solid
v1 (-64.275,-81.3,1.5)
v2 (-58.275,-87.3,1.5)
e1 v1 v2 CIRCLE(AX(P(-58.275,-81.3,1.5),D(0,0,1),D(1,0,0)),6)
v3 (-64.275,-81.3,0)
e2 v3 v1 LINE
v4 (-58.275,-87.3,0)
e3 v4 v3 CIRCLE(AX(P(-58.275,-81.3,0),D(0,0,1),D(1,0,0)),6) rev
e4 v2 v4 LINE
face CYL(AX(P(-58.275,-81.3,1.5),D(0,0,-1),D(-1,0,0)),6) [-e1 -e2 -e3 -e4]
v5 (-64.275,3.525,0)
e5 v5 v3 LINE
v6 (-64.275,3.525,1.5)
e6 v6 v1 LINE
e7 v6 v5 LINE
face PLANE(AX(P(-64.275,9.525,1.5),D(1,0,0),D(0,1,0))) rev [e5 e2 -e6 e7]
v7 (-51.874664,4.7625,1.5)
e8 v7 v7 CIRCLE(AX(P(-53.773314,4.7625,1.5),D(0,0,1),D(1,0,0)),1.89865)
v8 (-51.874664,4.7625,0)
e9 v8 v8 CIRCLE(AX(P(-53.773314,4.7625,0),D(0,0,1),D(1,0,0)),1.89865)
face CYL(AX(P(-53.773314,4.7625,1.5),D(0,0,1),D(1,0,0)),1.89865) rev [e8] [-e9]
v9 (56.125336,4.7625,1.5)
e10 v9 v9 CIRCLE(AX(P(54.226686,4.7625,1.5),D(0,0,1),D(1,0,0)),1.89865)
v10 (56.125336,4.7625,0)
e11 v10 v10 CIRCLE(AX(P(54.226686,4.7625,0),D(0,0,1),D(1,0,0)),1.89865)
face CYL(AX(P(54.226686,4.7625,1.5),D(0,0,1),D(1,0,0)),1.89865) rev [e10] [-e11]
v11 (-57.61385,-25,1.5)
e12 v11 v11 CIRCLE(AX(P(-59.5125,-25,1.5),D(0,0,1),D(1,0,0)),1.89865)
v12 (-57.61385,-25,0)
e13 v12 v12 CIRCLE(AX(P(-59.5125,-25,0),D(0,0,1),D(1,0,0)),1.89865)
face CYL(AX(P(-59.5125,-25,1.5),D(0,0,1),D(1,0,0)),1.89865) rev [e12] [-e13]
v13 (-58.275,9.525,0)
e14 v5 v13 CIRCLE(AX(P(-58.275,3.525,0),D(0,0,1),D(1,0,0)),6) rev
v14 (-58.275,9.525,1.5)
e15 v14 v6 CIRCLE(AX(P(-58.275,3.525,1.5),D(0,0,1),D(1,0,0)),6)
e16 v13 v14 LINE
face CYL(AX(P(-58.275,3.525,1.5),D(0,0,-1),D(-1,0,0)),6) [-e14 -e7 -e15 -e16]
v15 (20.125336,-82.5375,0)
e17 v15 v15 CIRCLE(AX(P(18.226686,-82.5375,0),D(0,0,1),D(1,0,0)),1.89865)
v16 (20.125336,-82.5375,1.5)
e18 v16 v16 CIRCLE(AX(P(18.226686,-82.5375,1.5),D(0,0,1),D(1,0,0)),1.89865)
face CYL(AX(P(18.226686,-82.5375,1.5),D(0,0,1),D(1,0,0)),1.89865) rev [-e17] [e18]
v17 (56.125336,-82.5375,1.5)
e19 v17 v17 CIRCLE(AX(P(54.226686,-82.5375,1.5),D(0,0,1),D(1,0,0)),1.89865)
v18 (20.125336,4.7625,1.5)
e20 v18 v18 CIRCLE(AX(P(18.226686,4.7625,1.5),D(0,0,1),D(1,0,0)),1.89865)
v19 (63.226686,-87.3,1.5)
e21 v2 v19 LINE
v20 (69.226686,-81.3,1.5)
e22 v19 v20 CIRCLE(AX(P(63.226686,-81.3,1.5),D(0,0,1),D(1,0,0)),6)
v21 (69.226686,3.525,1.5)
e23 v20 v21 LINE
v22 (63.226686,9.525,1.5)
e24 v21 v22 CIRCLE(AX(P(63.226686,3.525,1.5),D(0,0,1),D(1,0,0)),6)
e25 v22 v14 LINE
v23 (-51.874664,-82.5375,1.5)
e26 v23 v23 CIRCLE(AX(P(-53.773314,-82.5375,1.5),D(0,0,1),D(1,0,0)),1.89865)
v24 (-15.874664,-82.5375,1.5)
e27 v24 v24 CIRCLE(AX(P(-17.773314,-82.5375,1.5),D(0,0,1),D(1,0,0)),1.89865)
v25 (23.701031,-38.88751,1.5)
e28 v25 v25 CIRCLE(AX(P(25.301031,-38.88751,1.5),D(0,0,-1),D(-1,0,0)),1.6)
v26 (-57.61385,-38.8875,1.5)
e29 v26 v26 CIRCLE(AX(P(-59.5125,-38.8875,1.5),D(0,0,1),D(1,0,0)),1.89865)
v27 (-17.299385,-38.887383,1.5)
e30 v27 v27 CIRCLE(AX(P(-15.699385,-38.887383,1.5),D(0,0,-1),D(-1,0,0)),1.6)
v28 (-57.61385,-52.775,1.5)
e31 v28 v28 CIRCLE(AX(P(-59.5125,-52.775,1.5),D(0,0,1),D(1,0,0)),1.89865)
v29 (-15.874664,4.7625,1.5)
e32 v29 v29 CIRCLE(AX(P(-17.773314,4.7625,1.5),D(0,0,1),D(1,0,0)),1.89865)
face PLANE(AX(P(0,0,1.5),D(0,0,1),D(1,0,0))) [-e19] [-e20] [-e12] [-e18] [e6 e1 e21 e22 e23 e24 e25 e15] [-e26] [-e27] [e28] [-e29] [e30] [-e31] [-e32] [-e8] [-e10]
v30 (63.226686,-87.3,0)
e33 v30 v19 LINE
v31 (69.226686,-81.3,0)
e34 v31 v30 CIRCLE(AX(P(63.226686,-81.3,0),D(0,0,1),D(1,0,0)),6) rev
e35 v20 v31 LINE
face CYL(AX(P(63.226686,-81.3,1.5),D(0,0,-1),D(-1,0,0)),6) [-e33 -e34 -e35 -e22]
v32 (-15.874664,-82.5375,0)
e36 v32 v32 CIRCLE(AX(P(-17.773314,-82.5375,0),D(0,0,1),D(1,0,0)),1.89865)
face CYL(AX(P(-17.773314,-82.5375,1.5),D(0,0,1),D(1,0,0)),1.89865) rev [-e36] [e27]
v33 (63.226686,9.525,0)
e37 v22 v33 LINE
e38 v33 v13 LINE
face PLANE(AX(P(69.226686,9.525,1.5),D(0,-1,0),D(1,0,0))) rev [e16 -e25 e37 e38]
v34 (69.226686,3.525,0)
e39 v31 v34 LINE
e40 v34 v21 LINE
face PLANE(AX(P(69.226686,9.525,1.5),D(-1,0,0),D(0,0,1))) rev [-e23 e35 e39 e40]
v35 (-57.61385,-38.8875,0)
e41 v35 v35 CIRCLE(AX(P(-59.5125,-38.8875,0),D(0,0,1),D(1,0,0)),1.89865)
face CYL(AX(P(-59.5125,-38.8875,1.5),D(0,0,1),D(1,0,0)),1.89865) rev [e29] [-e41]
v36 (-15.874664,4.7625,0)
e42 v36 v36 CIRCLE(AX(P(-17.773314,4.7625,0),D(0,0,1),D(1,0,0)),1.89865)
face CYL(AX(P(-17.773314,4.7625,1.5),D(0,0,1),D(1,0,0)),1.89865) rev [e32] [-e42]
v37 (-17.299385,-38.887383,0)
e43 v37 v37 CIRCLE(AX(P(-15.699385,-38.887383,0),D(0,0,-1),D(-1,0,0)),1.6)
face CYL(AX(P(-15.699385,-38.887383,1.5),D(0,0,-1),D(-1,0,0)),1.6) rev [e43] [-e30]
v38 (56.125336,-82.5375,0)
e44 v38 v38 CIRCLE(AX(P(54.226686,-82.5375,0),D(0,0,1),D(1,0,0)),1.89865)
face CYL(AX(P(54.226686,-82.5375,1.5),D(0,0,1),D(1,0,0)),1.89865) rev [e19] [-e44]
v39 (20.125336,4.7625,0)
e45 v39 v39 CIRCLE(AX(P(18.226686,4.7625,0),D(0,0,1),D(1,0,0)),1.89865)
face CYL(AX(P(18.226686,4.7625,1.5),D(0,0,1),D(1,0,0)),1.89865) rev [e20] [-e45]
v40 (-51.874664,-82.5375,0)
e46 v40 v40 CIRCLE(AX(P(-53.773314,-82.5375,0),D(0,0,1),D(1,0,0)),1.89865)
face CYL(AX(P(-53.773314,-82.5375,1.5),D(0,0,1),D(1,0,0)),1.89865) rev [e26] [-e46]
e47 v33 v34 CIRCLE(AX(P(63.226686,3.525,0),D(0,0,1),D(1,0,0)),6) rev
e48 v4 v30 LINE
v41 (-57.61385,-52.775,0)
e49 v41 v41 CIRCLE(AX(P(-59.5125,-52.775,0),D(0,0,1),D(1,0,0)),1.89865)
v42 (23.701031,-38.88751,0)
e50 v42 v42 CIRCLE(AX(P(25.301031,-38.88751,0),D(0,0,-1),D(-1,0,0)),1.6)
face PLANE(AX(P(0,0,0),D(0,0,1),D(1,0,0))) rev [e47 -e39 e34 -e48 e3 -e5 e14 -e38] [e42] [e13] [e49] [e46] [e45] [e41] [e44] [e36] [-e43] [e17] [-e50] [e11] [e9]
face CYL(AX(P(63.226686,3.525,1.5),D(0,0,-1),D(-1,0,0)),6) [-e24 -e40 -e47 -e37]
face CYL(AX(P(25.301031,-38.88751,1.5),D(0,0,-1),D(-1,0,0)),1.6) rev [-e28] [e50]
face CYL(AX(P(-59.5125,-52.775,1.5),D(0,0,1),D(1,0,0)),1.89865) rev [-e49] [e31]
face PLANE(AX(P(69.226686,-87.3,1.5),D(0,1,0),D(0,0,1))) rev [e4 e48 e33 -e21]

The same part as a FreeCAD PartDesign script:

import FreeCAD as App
import Part
import Sketcher
Q = App.Units.Quantity


def edges_at(feature, points):
    """Names of the edges that pass closest to the given points."""
    edges = feature.Shape.Edges
    near = lambda p: min(range(len(edges)), key=lambda i: edges[i].distToShape(Part.Vertex(*p))[0])
    return sorted({f"Edge{near(p) + 1}" for p in points})


def add_polygon(sketch, points):
    """Adds a closed chain of lines whose ends are joined by coincident constraints."""
    first, n = sketch.GeometryCount, len(points)
    for a, b in zip(points, points[1:] + points[:1]):
        sketch.addGeometry(Part.LineSegment(App.Vector(*a, 0), App.Vector(*b, 0)), False)
    for i in range(n):
        sketch.addConstraint(Sketcher.Constraint("Coincident", first + i, 2, first + (i + 1) % n, 1))

doc = App.newDocument("Part")
body = doc.addObject("PartDesign::Body", "Body")

sketch1 = body.newObject("Sketcher::SketchObject", "Sketch")
sketch1.AttachmentSupport = (doc.getObject("XY_Plane"), [""])
sketch1.MapMode = "FlatFace"
add_polygon(sketch1, [(-64, 10), (-64, -87), (69, -87), (69, 10)])
sketch1.addConstraint(Sketcher.Constraint("Vertical", 0))
sketch1.addConstraint(Sketcher.Constraint("Horizontal", 1))
sketch1.addConstraint(Sketcher.Constraint("Vertical", 2))
sketch1.addConstraint(Sketcher.Constraint("Horizontal", 3))
sketch1.addConstraint(Sketcher.Constraint("DistanceY", 0, 2, -1, 1, Q("87.3 mm")))
sketch1.addConstraint(Sketcher.Constraint("DistanceY", 0, 2, 0, 1, Q("96.825 mm")))
sketch1.addConstraint(Sketcher.Constraint("DistanceX", 0, 2, -1, 1, Q("64.275 mm")))
sketch1.addConstraint(Sketcher.Constraint("DistanceX", 1, 1, 1, 2, Q("133.501686 mm")))
pad1 = body.newObject("PartDesign::Pad", "Pad")
pad1.Profile = sketch1
pad1.Length = 1.5

sketch2 = body.newObject("Sketcher::SketchObject", "Sketch001")
sketch2.AttachmentSupport = (doc.getObject("XY_Plane"), [""])
sketch2.MapMode = "FlatFace"
sketch2.AttachmentOffset = App.Placement(App.Vector(0, 0, 1.5), App.Rotation())
sketch2.addGeometry(Part.Circle(App.Vector(54.2, 4.8, 0), App.Vector(0, 0, 1), 1.9), False)
sketch2.addConstraint(Sketcher.Constraint("Diameter", 0, Q("3.7973 mm")))
sketch2.addConstraint(Sketcher.Constraint("DistanceY", -1, 1, 0, 3, Q("4.7625 mm")))
sketch2.addConstraint(Sketcher.Constraint("DistanceX", -1, 1, 0, 3, Q("54.226686 mm")))
doc.recompute()
hole = body.newObject("PartDesign::Hole", "Hole")
hole.Profile = sketch2
hole.ThreadType = "None"
hole.Diameter = 3.7973
hole.DepthType = "ThroughAll"
doc.recompute()

linearpattern = body.newObject("PartDesign::LinearPattern", "LinearPattern")
linearpattern.Originals = [hole]
linearpattern.Direction = (doc.getObject("X_Axis"), [""])
linearpattern.Mode = "offset"
linearpattern.Offset = 36
linearpattern.Occurrences = 4
linearpattern.Reversed = True
body.Tip = linearpattern
doc.recompute()

datumplane = body.newObject("PartDesign::Plane", "DatumPlane")
datumplane.AttachmentSupport = (doc.getObject("XZ_Plane"), [""])
datumplane.MapMode = "FlatFace"
datumplane.AttachmentOffset = App.Placement(App.Vector(0, 0, 38.8875), App.Rotation())
mirrored = body.newObject("PartDesign::Mirrored", "Mirrored")
mirrored.Originals = [hole]
mirrored.MirrorPlane = (datumplane, [""])
body.Tip = mirrored

sketch3 = body.newObject("Sketcher::SketchObject", "Sketch002")
sketch3.AttachmentSupport = (doc.getObject("XY_Plane"), [""])
sketch3.MapMode = "FlatFace"
sketch3.AttachmentOffset = App.Placement(App.Vector(0, 0, 1.5), App.Rotation())
sketch3.addGeometry(Part.Circle(App.Vector(18.2, -82.5, 0), App.Vector(0, 0, 1), 1.9), False)
sketch3.addConstraint(Sketcher.Constraint("Diameter", 0, Q("3.7973 mm")))
sketch3.addConstraint(Sketcher.Constraint("DistanceY", 0, 3, -1, 1, Q("82.5375 mm")))
sketch3.addConstraint(Sketcher.Constraint("DistanceX", -1, 1, 0, 3, Q("18.226686 mm")))
doc.recompute()
hole2 = body.newObject("PartDesign::Hole", "Hole001")
hole2.Profile = sketch3
hole2.ThreadType = "None"
hole2.Diameter = 3.7973
hole2.DepthType = "ThroughAll"

sketch4 = body.newObject("Sketcher::SketchObject", "Sketch003")
sketch4.AttachmentSupport = (doc.getObject("XY_Plane"), [""])
sketch4.MapMode = "FlatFace"
sketch4.AttachmentOffset = App.Placement(App.Vector(0, 0, 1.5), App.Rotation())
sketch4.addGeometry(Part.Circle(App.Vector(-17.8, -82.5, 0), App.Vector(0, 0, 1), 1.9), False)
sketch4.addConstraint(Sketcher.Constraint("Diameter", 0, Q("3.7973 mm")))
sketch4.addConstraint(Sketcher.Constraint("DistanceY", 0, 3, -1, 1, Q("82.5375 mm")))
sketch4.addConstraint(Sketcher.Constraint("DistanceX", 0, 3, -1, 1, Q("17.773314 mm")))
doc.recompute()
hole3 = body.newObject("PartDesign::Hole", "Hole002")
hole3.Profile = sketch4
hole3.ThreadType = "None"
hole3.Diameter = 3.7973
hole3.DepthType = "ThroughAll"

sketch5 = body.newObject("Sketcher::SketchObject", "Sketch004")
sketch5.AttachmentSupport = (doc.getObject("XY_Plane"), [""])
sketch5.MapMode = "FlatFace"
sketch5.AttachmentOffset = App.Placement(App.Vector(0, 0, 1.5), App.Rotation())
sketch5.addGeometry(Part.Circle(App.Vector(-53.8, -82.5, 0), App.Vector(0, 0, 1), 1.9), False)
sketch5.addConstraint(Sketcher.Constraint("Diameter", 0, Q("3.7973 mm")))
sketch5.addConstraint(Sketcher.Constraint("DistanceY", 0, 3, -1, 1, Q("82.5375 mm")))
sketch5.addConstraint(Sketcher.Constraint("DistanceX", 0, 3, -1, 1, Q("53.773314 mm")))
doc.recompute()
hole4 = body.newObject("PartDesign::Hole", "Hole003")
hole4.Profile = sketch5
hole4.ThreadType = "None"
hole4.Diameter = 3.7973
hole4.DepthType = "ThroughAll"

sketch6 = body.newObject("Sketcher::SketchObject", "Sketch005")
sketch6.AttachmentSupport = (doc.getObject("XY_Plane"), [""])
sketch6.MapMode = "FlatFace"
sketch6.AttachmentOffset = App.Placement(App.Vector(0, 0, 1.5), App.Rotation())
sketch6.addGeometry(Part.Circle(App.Vector(-59.5, -52.8, 0), App.Vector(0, 0, 1), 1.9), False)
sketch6.addConstraint(Sketcher.Constraint("Diameter", 0, Q("3.7973 mm")))
sketch6.addConstraint(Sketcher.Constraint("DistanceY", 0, 3, -1, 1, Q("52.775 mm")))
sketch6.addConstraint(Sketcher.Constraint("DistanceX", 0, 3, -1, 1, Q("59.5125 mm")))
doc.recompute()
hole5 = body.newObject("PartDesign::Hole", "Hole004")
hole5.Profile = sketch6
hole5.ThreadType = "None"
hole5.Diameter = 3.7973
hole5.DepthType = "ThroughAll"
doc.recompute()

linearpattern2 = body.newObject("PartDesign::LinearPattern", "LinearPattern001")
linearpattern2.Originals = [hole5]
linearpattern2.Direction = (doc.getObject("Y_Axis"), [""])
linearpattern2.Mode = "offset"
linearpattern2.Offset = 13.8875
linearpattern2.Occurrences = 3
body.Tip = linearpattern2
doc.recompute()

fillet = body.newObject("PartDesign::Fillet", "Fillet")
fillet.Base = (linearpattern2, edges_at(linearpattern2, [
    (-64.275, -87.3, 0.75),
    (-64.275, 9.525, 0.75),
    (69.227, 9.525, 0.75),
    (69.227, -87.3, 0.75),
]))
fillet.Radius = 6

sketch7 = body.newObject("Sketcher::SketchObject", "Sketch006")
sketch7.AttachmentSupport = (doc.getObject("XY_Plane"), [""])
sketch7.MapMode = "FlatFace"
sketch7.addGeometry(Part.Circle(App.Vector(25.3, -38.9, 0), App.Vector(0, 0, 1), 1.6), False)
sketch7.addGeometry(Part.Circle(App.Vector(-15.7, -38.9, 0), App.Vector(0, 0, 1), 1.6), False)
sketch7.addConstraint(Sketcher.Constraint("Equal", 0, 1))
sketch7.addConstraint(Sketcher.Constraint("Diameter", 0, Q("3.2 mm")))
sketch7.addConstraint(Sketcher.Constraint("DistanceX", -1, 1, 0, 3, Q("25.301031 mm")))
sketch7.addConstraint(Sketcher.Constraint("DistanceY", 0, 3, -1, 1, Q("38.88751 mm")))
sketch7.addConstraint(Sketcher.Constraint("DistanceX", 1, 3, -1, 1, Q("15.699385 mm")))
sketch7.addConstraint(Sketcher.Constraint("DistanceY", 1, 3, -1, 1, Q("38.887383 mm")))
pocket1 = body.newObject("PartDesign::Pocket", "Pocket")
pocket1.Profile = sketch7
pocket1.Type = "ThroughAll"
pocket1.Reversed = True

doc.recompute()
